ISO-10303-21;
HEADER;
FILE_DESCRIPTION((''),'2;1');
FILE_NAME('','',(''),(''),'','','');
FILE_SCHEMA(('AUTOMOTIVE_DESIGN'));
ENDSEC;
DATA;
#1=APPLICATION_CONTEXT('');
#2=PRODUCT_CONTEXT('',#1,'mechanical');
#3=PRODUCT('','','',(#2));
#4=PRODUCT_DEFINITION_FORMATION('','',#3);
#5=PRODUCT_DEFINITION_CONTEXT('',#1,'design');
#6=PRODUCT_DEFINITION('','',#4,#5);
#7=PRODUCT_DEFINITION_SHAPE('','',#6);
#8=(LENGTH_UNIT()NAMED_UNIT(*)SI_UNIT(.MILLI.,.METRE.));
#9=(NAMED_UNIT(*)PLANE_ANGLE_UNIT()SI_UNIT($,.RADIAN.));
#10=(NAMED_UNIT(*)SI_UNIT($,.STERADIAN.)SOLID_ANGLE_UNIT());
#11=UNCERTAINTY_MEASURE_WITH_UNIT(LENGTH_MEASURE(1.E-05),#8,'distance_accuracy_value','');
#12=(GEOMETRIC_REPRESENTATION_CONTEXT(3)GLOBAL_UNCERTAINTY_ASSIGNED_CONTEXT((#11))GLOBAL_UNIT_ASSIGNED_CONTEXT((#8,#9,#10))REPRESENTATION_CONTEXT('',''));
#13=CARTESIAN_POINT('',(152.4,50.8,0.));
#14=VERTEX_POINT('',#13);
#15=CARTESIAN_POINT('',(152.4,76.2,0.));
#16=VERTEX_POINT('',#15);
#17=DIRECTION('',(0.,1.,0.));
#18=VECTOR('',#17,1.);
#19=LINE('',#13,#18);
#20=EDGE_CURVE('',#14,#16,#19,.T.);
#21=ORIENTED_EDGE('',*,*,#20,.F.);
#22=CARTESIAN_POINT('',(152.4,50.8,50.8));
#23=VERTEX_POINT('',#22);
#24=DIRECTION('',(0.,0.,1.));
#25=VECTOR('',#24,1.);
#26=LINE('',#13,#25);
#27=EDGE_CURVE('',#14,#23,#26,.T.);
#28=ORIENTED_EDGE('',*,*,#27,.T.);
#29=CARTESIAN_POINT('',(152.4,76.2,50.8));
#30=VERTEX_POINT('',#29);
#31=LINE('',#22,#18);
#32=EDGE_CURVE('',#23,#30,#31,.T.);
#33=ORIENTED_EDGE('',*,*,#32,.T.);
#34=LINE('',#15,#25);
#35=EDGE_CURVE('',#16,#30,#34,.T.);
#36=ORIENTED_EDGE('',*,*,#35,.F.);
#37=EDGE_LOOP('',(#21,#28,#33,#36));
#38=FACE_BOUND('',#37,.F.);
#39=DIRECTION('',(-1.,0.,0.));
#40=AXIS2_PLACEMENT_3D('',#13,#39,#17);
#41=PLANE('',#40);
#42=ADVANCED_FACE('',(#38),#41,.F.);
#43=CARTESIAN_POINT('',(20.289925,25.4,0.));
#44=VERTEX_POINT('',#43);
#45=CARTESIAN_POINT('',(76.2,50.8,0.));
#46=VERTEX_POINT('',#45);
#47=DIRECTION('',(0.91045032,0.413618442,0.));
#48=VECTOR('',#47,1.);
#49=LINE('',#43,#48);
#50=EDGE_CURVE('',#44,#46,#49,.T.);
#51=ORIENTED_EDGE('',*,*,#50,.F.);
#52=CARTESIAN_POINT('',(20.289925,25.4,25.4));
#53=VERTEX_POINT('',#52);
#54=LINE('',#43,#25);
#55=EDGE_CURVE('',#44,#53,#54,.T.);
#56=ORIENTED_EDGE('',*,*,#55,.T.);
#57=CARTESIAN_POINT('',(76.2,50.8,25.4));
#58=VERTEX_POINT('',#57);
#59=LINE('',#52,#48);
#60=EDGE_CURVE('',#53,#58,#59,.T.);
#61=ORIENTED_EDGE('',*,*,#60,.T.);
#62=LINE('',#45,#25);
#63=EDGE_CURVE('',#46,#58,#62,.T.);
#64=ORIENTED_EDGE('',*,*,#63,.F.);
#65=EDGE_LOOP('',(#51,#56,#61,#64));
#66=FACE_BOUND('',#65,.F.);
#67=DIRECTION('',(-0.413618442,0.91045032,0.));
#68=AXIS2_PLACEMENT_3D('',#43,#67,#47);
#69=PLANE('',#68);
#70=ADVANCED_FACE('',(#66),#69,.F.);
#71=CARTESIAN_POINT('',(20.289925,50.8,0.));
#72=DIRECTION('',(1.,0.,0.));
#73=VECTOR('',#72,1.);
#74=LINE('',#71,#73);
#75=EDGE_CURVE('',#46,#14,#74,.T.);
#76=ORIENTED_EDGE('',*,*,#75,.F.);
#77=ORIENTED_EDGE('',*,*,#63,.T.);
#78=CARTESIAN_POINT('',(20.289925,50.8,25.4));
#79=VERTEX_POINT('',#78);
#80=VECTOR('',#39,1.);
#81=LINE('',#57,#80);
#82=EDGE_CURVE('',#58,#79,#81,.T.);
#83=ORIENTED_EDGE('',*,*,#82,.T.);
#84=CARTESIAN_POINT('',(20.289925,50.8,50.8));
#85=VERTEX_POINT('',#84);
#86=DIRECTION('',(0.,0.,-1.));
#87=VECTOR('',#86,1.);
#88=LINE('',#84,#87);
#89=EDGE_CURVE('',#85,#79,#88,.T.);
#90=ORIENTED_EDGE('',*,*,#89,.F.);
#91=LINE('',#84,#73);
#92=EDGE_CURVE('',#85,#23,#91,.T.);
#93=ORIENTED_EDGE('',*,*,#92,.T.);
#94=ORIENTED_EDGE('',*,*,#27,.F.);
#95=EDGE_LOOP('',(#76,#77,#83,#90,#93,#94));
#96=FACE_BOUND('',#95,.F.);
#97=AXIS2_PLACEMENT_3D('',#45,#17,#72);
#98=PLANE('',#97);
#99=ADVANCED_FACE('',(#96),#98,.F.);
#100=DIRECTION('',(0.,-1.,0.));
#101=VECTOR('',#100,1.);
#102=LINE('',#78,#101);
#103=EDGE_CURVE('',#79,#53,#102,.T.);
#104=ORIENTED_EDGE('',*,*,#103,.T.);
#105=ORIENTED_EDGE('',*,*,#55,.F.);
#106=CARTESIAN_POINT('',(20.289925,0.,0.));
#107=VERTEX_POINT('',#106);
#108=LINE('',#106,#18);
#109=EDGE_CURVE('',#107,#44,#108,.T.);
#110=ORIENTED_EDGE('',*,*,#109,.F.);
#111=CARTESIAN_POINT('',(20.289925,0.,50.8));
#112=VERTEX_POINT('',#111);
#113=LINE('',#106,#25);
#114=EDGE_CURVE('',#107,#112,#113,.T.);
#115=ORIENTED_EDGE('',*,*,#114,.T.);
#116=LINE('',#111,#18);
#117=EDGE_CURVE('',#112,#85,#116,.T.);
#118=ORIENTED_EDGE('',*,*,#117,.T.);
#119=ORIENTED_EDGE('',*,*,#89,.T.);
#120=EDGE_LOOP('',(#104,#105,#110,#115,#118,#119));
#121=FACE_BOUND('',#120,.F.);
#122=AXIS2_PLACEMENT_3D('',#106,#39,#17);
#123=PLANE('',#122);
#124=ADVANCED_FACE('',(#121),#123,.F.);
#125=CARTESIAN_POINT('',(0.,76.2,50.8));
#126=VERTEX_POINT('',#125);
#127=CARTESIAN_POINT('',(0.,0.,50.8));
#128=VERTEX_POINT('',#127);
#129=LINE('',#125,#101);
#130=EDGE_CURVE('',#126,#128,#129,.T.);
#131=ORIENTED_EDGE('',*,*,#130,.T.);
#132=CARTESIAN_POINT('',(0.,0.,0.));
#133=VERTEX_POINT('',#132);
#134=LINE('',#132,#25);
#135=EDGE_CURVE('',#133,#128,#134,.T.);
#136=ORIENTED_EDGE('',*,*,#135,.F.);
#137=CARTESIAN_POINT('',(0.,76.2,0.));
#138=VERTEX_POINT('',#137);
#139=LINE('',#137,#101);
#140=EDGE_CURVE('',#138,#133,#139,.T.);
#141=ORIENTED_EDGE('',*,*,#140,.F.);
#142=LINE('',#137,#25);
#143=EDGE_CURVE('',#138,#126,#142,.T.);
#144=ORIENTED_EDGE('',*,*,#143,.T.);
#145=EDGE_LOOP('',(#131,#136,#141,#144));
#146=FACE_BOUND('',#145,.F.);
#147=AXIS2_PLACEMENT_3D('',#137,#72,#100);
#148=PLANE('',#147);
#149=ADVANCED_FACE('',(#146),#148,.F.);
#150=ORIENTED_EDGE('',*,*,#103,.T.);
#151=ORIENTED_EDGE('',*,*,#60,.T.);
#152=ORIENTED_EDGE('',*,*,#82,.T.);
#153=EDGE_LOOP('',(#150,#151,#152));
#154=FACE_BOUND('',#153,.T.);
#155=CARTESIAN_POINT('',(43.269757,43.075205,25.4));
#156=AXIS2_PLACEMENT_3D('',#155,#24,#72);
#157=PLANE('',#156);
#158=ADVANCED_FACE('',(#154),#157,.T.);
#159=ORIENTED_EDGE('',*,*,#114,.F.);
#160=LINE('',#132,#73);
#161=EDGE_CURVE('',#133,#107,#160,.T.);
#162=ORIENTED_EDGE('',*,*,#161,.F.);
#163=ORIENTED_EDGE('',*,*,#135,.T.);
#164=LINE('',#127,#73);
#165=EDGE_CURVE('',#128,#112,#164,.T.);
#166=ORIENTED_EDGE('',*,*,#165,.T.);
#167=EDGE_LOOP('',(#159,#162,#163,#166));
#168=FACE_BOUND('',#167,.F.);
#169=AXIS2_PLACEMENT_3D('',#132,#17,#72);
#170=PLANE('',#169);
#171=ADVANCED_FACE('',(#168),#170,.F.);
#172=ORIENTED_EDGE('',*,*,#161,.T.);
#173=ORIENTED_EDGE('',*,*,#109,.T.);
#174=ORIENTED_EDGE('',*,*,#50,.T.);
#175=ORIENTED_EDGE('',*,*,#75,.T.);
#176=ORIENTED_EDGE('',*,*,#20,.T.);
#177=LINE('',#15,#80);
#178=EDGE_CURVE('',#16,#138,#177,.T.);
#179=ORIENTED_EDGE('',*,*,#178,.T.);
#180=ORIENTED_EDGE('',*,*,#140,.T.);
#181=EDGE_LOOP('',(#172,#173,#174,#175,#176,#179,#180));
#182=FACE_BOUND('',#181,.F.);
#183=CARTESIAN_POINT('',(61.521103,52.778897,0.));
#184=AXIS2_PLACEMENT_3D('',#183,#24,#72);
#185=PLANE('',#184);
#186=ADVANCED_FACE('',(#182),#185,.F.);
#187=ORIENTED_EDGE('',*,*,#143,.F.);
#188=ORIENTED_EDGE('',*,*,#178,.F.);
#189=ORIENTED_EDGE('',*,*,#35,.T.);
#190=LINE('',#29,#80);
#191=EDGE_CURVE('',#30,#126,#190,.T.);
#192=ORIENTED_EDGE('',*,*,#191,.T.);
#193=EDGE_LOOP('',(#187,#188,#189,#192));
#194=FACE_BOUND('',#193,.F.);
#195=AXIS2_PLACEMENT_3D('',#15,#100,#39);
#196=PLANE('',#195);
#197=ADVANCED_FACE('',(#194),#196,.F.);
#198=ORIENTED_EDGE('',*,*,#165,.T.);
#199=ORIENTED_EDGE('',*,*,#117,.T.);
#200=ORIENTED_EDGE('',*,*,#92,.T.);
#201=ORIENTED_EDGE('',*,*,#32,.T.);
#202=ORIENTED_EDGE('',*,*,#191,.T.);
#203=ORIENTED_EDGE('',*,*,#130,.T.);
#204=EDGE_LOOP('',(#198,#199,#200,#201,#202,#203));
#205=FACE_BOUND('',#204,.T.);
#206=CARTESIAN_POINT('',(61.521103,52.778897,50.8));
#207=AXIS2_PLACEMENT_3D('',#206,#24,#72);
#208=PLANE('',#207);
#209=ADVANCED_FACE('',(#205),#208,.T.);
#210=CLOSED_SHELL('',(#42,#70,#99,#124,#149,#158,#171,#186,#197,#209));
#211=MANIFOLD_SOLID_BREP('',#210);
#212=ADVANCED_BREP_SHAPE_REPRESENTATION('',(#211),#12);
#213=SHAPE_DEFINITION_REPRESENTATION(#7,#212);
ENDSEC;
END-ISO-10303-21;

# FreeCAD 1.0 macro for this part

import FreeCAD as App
import Part
import Sketcher

V = App.Vector
Q = App.Units.Quantity

doc = App.newDocument("Part")
body = doc.addObject("PartDesign::Body", "Body")

sketch1 = body.newObject("Sketcher::SketchObject", "Sketch")
sketch1.AttachmentSupport = (doc.getObject("XY_Plane"), [""])
sketch1.MapMode = "FlatFace"
sketch1.addGeometry(Part.LineSegment(V(0, 76, 0), V(0, 0, 0)), False)
sketch1.addGeometry(Part.LineSegment(V(0, 0, 0), V(20, 0, 0)), False)
sketch1.addGeometry(Part.LineSegment(V(20, 0, 0), V(20, 25, 0)), False)
sketch1.addGeometry(Part.LineSegment(V(20, 25, 0), V(76, 51, 0)), False)
sketch1.addGeometry(Part.LineSegment(V(76, 51, 0), V(152, 51, 0)), False)
sketch1.addGeometry(Part.LineSegment(V(152, 51, 0), V(152, 76, 0)), False)
sketch1.addGeometry(Part.LineSegment(V(152, 76, 0), V(0, 76, 0)), False)
sketch1.addConstraint(Sketcher.Constraint("Coincident", 0, 2, 1, 1))
sketch1.addConstraint(Sketcher.Constraint("Coincident", 1, 2, 2, 1))
sketch1.addConstraint(Sketcher.Constraint("Coincident", 2, 2, 3, 1))
sketch1.addConstraint(Sketcher.Constraint("Coincident", 3, 2, 4, 1))
sketch1.addConstraint(Sketcher.Constraint("Coincident", 4, 2, 5, 1))
sketch1.addConstraint(Sketcher.Constraint("Coincident", 5, 2, 6, 1))
sketch1.addConstraint(Sketcher.Constraint("Coincident", 6, 2, 0, 1))
sketch1.addConstraint(Sketcher.Constraint("Vertical", 0))
sketch1.addConstraint(Sketcher.Constraint("Horizontal", 1))
sketch1.addConstraint(Sketcher.Constraint("Vertical", 2))
sketch1.addConstraint(Sketcher.Constraint("Horizontal", 4))
sketch1.addConstraint(Sketcher.Constraint("Vertical", 5))
sketch1.addConstraint(Sketcher.Constraint("Horizontal", 6))
sketch1.addConstraint(Sketcher.Constraint("Coincident", 0, 2, -1, 1))
sketch1.addConstraint(Sketcher.Constraint("Equal", 4, 0))
sketch1.addConstraint(Sketcher.Constraint("Equal", 2, 5))
sketch1.addConstraint(Sketcher.Constraint("DistanceX", 4, 1, 4, 2, Q("3 in")))
sketch1.addConstraint(Sketcher.Constraint("DistanceX", 6, 2, 6, 1, Q("6 in")))
sketch1.addConstraint(Sketcher.Constraint("DistanceY", 2, 1, 2, 2, Q("1 in")))
sketch1.addConstraint(Sketcher.Constraint("DistanceX", 1, 1, 1, 2, 20.289925))
pad1 = body.newObject("PartDesign::Pad", "Pad")
pad1.Profile = sketch1
pad1.Length = Q("2 in")

sketch2 = body.newObject("Sketcher::SketchObject", "Sketch001")
sketch2.AttachmentSupport = (doc.getObject("XY_Plane"), [""])
sketch2.MapMode = "FlatFace"
sketch2.AttachmentOffset = App.Placement(V(0, 0, 2 * 25.4), App.Rotation())
sketch2.addGeometry(Part.LineSegment(V(20, 51, 0), V(20, 25, 0)), False)
sketch2.addGeometry(Part.LineSegment(V(20, 25, 0), V(76, 51, 0)), False)
sketch2.addGeometry(Part.LineSegment(V(76, 51, 0), V(20, 51, 0)), False)
sketch2.addConstraint(Sketcher.Constraint("Coincident", 0, 2, 1, 1))
sketch2.addConstraint(Sketcher.Constraint("Coincident", 1, 2, 2, 1))
sketch2.addConstraint(Sketcher.Constraint("Coincident", 2, 2, 0, 1))
sketch2.addConstraint(Sketcher.Constraint("Vertical", 0))
sketch2.addConstraint(Sketcher.Constraint("Horizontal", 2))
sketch2.addConstraint(Sketcher.Constraint("DistanceY", 0, 2, 0, 1, Q("1 in")))
sketch2.addConstraint(Sketcher.Constraint("DistanceY", -1, 1, 0, 2, Q("1 in")))
sketch2.addConstraint(Sketcher.Constraint("DistanceX", -1, 1, 1, 2, Q("3 in")))
sketch2.addConstraint(Sketcher.Constraint("DistanceX", 2, 2, 2, 1, 55.910075))
pocket1 = body.newObject("PartDesign::Pocket", "Pocket")
pocket1.Profile = sketch2
pocket1.Length = Q("1 in")

doc.recompute()
